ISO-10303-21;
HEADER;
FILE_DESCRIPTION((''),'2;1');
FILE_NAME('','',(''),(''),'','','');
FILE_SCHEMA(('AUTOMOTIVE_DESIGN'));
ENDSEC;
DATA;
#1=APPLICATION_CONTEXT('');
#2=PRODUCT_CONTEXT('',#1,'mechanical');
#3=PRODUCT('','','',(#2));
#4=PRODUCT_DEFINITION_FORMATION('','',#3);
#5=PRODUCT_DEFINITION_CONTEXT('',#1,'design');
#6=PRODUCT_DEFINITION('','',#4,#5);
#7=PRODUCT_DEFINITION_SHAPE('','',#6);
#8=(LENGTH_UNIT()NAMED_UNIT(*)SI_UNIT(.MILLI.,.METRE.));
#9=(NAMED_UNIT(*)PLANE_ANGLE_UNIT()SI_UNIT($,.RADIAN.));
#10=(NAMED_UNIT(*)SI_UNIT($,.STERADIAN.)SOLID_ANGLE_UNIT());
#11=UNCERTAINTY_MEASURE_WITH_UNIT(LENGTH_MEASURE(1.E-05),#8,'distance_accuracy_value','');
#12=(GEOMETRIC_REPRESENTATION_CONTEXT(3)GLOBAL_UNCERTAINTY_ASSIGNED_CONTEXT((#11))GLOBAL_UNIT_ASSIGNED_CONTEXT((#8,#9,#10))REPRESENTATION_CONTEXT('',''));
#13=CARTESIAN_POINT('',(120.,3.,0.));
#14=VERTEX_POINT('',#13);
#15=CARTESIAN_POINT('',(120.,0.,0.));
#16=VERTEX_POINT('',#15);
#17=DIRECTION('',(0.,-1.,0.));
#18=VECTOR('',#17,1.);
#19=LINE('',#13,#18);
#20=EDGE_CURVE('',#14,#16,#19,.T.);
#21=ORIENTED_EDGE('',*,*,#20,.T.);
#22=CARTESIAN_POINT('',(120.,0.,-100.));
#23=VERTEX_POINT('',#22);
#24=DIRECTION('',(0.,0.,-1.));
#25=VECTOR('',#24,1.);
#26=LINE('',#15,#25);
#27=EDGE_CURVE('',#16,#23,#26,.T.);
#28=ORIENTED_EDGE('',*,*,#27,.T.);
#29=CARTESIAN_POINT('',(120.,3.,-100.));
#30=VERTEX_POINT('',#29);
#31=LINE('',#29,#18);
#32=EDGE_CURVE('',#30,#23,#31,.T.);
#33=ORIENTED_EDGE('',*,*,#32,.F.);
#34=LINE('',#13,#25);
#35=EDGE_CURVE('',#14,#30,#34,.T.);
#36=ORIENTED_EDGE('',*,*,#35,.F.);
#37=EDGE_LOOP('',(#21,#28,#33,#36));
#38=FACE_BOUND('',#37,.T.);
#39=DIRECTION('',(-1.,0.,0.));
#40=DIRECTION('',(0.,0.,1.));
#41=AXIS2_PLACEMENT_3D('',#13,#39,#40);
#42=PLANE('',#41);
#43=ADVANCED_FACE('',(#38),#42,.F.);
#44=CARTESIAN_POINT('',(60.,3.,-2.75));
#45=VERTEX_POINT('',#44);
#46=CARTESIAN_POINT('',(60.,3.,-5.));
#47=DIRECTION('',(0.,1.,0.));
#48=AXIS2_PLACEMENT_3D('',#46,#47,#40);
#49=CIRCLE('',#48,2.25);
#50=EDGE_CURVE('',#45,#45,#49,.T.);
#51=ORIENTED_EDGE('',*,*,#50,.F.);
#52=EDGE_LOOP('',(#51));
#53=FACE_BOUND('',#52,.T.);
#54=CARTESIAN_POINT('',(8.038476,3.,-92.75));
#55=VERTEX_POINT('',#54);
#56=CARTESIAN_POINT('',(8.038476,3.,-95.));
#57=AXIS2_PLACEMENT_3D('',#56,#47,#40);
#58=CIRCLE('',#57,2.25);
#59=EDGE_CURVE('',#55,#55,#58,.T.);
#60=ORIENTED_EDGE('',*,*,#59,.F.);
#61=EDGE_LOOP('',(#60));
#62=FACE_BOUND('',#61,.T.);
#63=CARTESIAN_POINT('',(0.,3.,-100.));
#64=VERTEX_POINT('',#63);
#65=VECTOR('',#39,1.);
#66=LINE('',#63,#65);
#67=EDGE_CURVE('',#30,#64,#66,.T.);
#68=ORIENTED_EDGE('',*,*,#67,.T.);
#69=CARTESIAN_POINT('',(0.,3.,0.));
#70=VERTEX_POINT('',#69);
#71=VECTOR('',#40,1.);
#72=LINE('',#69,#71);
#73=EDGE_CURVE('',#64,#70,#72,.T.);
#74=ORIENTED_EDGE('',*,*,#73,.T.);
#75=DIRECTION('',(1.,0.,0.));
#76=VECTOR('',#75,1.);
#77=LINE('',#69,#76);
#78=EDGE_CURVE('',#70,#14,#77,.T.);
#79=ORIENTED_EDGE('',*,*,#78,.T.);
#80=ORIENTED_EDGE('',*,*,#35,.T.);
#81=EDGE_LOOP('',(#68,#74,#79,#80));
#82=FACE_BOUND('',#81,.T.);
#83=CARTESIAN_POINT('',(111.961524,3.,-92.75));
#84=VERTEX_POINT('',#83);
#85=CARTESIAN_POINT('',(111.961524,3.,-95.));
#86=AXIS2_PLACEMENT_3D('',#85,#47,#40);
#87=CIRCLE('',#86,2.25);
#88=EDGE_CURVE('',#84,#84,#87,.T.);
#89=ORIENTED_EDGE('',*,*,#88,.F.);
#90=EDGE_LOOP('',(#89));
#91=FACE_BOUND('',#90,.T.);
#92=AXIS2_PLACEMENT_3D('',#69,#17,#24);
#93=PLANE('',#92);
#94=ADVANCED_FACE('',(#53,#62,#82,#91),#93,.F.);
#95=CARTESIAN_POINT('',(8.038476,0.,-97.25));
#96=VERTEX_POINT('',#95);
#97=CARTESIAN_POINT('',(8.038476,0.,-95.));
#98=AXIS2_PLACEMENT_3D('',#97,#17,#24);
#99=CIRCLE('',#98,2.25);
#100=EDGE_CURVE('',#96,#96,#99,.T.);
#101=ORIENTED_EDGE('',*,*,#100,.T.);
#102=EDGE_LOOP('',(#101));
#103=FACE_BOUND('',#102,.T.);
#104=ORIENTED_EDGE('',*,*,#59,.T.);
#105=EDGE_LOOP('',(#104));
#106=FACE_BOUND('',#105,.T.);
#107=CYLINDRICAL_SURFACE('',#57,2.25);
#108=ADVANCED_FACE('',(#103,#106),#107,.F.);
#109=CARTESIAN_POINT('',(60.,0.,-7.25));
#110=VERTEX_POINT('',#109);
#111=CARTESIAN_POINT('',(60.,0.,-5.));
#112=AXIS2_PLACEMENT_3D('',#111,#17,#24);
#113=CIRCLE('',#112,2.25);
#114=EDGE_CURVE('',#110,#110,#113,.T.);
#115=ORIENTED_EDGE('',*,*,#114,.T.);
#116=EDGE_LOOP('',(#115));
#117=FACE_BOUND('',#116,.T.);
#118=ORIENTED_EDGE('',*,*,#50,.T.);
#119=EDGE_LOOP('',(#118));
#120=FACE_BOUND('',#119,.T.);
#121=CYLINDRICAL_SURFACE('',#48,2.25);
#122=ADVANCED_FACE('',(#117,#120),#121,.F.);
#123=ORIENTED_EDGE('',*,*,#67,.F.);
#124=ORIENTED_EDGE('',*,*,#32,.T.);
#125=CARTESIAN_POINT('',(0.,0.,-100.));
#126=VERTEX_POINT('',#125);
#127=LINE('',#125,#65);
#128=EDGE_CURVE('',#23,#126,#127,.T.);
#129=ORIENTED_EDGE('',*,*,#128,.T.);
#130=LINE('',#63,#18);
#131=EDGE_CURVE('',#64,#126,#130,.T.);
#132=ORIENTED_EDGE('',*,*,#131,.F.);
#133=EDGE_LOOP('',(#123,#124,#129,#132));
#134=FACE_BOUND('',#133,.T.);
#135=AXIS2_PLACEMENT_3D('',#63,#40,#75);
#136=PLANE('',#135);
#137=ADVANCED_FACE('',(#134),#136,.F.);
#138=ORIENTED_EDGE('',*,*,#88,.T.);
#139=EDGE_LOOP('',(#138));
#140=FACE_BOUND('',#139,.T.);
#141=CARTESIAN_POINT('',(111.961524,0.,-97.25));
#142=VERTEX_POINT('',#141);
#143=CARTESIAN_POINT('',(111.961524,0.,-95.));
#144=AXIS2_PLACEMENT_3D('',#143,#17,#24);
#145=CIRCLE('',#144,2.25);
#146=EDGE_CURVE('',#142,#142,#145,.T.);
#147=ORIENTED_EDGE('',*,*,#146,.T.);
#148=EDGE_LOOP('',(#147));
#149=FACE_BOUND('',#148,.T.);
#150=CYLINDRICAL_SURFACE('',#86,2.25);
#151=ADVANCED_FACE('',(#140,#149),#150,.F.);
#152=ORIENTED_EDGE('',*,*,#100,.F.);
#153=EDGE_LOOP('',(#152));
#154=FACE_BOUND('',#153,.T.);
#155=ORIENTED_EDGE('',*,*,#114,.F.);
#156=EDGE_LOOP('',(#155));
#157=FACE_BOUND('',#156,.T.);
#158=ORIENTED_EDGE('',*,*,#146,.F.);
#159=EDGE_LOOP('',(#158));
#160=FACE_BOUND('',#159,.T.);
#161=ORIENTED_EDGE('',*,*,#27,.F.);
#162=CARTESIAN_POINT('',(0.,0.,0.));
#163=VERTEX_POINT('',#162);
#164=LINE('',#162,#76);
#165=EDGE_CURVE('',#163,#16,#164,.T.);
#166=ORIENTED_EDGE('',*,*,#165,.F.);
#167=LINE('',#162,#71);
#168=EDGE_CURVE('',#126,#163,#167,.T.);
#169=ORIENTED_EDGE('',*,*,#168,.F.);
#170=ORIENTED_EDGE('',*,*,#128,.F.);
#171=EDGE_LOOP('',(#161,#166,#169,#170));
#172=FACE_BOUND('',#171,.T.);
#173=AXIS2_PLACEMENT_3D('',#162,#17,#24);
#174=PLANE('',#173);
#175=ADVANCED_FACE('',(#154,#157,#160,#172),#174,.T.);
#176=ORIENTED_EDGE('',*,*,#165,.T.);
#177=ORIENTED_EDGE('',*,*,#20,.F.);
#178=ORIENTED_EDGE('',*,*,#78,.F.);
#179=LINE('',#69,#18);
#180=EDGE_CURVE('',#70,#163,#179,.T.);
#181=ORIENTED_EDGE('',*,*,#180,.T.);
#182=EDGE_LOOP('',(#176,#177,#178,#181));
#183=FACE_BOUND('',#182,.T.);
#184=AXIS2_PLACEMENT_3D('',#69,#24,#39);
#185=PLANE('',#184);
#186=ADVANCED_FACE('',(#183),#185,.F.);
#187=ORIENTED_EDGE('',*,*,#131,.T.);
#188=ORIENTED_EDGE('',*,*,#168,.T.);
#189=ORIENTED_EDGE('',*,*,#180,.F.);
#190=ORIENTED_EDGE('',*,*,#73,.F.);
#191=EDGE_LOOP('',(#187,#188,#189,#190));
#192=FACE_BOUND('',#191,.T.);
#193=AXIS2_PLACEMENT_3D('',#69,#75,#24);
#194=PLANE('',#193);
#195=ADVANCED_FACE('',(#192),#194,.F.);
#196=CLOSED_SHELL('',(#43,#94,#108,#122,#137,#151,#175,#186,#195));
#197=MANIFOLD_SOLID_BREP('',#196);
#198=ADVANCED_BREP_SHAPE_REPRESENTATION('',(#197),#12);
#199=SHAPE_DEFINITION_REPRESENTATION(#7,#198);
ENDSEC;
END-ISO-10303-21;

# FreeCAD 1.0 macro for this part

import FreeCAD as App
import Part
import Sketcher
from FreeCAD import Vector


def add_polygon(sketch, points):
    """Adds a closed chain of lines whose ends are joined by coincident constraints."""
    first, n = sketch.GeometryCount, len(points)
    for a, b in zip(points, points[1:] + points[:1]):
        sketch.addGeometry(Part.LineSegment(App.Vector(*a, 0), App.Vector(*b, 0)), False)
    for i in range(n):
        sketch.addConstraint(Sketcher.Constraint("Coincident", first + i, 2, first + (i + 1) % n, 1))

doc = App.newDocument("Part")
body = doc.addObject("PartDesign::Body", "Body")

sketch1 = doc.addObject("Sketcher::SketchObject", "Sketch")
body.addObject(sketch1)
sketch1.AttachmentSupport = (doc.XZ_Plane, [""])
sketch1.MapMode = "FlatFace"
add_polygon(sketch1, [(0, -100), (0, 0), (120, 0), (120, -100)])
sketch1.addConstraint([
    Sketcher.Constraint("Vertical", 0),
    Sketcher.Constraint("Horizontal", 1),
    Sketcher.Constraint("Vertical", 2),
    Sketcher.Constraint("Horizontal", 3),
    Sketcher.Constraint("Coincident", 0, 2, -1, 1),
    Sketcher.Constraint("DistanceX", 1, 1, 1, 2, 120.0),
    Sketcher.Constraint("DistanceY", 0, 1, 0, 2, 100.0),
])
pad1 = doc.addObject("PartDesign::Pad", "Pad")
body.addObject(pad1)
pad1.Profile = sketch1
pad1.Length = 3
pad1.Reversed = True

sketch2 = doc.addObject("Sketcher::SketchObject", "Sketch001")
body.addObject(sketch2)
sketch2.AttachmentSupport = (doc.XZ_Plane, [""])
sketch2.MapMode = "FlatFace"
sketch2.AttachmentOffset = App.Placement(Vector(0, 0, -3), App.Rotation())
sketch2.addGeometry([
    Part.Circle(Vector(8.038476, -95, 0), Vector(0, 0, 1), 2.25),
    Part.Circle(Vector(111.961524, -95, 0), Vector(0, 0, 1), 2.25),
    Part.Circle(Vector(60, -5, 0), Vector(0, 0, 1), 2.25),
], False)
sketch2.addConstraint([
    Sketcher.Constraint("Equal", 0, 1),
    Sketcher.Constraint("Equal", 1, 2),
    Sketcher.Constraint("Horizontal", 0, 3, 1, 3),
    Sketcher.Constraint("Diameter", 0, 4.5),
    Sketcher.Constraint("DistanceY", 0, 3, -1, 1, 95.0),
    Sketcher.Constraint("DistanceX", -1, 1, 2, 3, 60.0),
    Sketcher.Constraint("DistanceY", 2, 3, -1, 1, 5.0),
    Sketcher.Constraint("DistanceX", 0, 3, 1, 3, 103.923048),
    Sketcher.Constraint("DistanceX", -1, 1, 0, 3, 8.038476),
])
doc.recompute()
hole = doc.addObject("PartDesign::Hole", "Hole")
body.addObject(hole)
hole.Profile = sketch2
hole.ThreadType = "None"
hole.Diameter = 4.5
hole.DepthType = "Dimension"
hole.Depth = 20
hole.DrillPoint = "Angled"
hole.DrillPointAngle = 118
hole.Reversed = True

doc.recompute()
